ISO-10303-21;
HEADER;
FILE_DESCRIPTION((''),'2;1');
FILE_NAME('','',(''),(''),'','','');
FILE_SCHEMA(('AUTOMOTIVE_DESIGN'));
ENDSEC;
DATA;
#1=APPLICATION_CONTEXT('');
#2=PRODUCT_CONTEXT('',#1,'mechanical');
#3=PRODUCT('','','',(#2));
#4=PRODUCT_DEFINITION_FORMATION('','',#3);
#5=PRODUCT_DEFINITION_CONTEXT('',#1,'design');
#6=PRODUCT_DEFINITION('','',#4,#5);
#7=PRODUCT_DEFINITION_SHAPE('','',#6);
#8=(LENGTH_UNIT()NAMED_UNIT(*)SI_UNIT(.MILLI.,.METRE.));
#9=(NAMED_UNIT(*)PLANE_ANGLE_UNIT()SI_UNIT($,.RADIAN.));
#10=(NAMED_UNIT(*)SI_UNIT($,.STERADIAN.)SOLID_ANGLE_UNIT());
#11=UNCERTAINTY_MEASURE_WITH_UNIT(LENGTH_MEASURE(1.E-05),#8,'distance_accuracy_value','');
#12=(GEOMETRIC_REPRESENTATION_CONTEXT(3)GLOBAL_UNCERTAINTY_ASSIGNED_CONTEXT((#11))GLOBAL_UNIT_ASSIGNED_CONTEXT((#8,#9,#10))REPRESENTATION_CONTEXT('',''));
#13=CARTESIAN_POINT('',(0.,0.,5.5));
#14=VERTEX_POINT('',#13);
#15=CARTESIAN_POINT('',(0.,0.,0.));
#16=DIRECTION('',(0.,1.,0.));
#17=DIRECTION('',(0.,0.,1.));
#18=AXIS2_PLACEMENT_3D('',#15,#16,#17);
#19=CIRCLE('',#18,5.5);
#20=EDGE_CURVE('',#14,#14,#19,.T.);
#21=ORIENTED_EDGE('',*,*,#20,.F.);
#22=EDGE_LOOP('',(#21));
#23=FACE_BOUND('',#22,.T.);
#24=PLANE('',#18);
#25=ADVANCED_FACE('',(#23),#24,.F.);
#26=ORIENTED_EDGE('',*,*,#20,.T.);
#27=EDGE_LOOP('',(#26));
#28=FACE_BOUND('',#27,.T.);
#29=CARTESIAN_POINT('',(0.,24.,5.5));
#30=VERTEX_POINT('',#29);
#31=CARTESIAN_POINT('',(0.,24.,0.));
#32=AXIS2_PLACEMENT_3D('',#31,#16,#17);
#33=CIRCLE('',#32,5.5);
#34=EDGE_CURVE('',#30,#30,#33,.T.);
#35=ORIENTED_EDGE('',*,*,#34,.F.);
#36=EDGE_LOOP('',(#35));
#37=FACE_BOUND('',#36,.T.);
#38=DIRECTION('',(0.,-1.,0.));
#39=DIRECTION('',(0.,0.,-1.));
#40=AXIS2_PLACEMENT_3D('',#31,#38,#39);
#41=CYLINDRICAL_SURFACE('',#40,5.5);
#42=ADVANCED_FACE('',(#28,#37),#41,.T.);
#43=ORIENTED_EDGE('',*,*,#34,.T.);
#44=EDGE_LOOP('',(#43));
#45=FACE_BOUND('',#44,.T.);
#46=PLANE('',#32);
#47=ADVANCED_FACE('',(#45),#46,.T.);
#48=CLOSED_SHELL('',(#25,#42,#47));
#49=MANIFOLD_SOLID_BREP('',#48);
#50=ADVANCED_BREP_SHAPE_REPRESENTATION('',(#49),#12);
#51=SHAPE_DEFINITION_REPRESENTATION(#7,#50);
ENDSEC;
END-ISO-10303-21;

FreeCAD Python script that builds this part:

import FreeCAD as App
import Part
import Sketcher

doc = App.newDocument("Part")
body = doc.addObject("PartDesign::Body", "Body")

sketch1 = doc.addObject("Sketcher::SketchObject", "Sketch")
body.addObject(sketch1)
sketch1.AttachmentSupport = (doc.XZ_Plane, [""])
sketch1.MapMode = "FlatFace"
sketch1.addGeometry(Part.Circle(App.Vector(0, 0, 0), App.Vector(0, 0, 1), 6), False)
sketch1.addConstraint([
    Sketcher.Constraint("Coincident", 0, 3, -1, 1),
    Sketcher.Constraint("Diameter", 0, 11.0),
])
pad1 = doc.addObject("PartDesign::Pad", "Pad")
body.addObject(pad1)
pad1.Profile = sketch1
pad1.Length = 24
pad1.Reversed = True

doc.recompute()
